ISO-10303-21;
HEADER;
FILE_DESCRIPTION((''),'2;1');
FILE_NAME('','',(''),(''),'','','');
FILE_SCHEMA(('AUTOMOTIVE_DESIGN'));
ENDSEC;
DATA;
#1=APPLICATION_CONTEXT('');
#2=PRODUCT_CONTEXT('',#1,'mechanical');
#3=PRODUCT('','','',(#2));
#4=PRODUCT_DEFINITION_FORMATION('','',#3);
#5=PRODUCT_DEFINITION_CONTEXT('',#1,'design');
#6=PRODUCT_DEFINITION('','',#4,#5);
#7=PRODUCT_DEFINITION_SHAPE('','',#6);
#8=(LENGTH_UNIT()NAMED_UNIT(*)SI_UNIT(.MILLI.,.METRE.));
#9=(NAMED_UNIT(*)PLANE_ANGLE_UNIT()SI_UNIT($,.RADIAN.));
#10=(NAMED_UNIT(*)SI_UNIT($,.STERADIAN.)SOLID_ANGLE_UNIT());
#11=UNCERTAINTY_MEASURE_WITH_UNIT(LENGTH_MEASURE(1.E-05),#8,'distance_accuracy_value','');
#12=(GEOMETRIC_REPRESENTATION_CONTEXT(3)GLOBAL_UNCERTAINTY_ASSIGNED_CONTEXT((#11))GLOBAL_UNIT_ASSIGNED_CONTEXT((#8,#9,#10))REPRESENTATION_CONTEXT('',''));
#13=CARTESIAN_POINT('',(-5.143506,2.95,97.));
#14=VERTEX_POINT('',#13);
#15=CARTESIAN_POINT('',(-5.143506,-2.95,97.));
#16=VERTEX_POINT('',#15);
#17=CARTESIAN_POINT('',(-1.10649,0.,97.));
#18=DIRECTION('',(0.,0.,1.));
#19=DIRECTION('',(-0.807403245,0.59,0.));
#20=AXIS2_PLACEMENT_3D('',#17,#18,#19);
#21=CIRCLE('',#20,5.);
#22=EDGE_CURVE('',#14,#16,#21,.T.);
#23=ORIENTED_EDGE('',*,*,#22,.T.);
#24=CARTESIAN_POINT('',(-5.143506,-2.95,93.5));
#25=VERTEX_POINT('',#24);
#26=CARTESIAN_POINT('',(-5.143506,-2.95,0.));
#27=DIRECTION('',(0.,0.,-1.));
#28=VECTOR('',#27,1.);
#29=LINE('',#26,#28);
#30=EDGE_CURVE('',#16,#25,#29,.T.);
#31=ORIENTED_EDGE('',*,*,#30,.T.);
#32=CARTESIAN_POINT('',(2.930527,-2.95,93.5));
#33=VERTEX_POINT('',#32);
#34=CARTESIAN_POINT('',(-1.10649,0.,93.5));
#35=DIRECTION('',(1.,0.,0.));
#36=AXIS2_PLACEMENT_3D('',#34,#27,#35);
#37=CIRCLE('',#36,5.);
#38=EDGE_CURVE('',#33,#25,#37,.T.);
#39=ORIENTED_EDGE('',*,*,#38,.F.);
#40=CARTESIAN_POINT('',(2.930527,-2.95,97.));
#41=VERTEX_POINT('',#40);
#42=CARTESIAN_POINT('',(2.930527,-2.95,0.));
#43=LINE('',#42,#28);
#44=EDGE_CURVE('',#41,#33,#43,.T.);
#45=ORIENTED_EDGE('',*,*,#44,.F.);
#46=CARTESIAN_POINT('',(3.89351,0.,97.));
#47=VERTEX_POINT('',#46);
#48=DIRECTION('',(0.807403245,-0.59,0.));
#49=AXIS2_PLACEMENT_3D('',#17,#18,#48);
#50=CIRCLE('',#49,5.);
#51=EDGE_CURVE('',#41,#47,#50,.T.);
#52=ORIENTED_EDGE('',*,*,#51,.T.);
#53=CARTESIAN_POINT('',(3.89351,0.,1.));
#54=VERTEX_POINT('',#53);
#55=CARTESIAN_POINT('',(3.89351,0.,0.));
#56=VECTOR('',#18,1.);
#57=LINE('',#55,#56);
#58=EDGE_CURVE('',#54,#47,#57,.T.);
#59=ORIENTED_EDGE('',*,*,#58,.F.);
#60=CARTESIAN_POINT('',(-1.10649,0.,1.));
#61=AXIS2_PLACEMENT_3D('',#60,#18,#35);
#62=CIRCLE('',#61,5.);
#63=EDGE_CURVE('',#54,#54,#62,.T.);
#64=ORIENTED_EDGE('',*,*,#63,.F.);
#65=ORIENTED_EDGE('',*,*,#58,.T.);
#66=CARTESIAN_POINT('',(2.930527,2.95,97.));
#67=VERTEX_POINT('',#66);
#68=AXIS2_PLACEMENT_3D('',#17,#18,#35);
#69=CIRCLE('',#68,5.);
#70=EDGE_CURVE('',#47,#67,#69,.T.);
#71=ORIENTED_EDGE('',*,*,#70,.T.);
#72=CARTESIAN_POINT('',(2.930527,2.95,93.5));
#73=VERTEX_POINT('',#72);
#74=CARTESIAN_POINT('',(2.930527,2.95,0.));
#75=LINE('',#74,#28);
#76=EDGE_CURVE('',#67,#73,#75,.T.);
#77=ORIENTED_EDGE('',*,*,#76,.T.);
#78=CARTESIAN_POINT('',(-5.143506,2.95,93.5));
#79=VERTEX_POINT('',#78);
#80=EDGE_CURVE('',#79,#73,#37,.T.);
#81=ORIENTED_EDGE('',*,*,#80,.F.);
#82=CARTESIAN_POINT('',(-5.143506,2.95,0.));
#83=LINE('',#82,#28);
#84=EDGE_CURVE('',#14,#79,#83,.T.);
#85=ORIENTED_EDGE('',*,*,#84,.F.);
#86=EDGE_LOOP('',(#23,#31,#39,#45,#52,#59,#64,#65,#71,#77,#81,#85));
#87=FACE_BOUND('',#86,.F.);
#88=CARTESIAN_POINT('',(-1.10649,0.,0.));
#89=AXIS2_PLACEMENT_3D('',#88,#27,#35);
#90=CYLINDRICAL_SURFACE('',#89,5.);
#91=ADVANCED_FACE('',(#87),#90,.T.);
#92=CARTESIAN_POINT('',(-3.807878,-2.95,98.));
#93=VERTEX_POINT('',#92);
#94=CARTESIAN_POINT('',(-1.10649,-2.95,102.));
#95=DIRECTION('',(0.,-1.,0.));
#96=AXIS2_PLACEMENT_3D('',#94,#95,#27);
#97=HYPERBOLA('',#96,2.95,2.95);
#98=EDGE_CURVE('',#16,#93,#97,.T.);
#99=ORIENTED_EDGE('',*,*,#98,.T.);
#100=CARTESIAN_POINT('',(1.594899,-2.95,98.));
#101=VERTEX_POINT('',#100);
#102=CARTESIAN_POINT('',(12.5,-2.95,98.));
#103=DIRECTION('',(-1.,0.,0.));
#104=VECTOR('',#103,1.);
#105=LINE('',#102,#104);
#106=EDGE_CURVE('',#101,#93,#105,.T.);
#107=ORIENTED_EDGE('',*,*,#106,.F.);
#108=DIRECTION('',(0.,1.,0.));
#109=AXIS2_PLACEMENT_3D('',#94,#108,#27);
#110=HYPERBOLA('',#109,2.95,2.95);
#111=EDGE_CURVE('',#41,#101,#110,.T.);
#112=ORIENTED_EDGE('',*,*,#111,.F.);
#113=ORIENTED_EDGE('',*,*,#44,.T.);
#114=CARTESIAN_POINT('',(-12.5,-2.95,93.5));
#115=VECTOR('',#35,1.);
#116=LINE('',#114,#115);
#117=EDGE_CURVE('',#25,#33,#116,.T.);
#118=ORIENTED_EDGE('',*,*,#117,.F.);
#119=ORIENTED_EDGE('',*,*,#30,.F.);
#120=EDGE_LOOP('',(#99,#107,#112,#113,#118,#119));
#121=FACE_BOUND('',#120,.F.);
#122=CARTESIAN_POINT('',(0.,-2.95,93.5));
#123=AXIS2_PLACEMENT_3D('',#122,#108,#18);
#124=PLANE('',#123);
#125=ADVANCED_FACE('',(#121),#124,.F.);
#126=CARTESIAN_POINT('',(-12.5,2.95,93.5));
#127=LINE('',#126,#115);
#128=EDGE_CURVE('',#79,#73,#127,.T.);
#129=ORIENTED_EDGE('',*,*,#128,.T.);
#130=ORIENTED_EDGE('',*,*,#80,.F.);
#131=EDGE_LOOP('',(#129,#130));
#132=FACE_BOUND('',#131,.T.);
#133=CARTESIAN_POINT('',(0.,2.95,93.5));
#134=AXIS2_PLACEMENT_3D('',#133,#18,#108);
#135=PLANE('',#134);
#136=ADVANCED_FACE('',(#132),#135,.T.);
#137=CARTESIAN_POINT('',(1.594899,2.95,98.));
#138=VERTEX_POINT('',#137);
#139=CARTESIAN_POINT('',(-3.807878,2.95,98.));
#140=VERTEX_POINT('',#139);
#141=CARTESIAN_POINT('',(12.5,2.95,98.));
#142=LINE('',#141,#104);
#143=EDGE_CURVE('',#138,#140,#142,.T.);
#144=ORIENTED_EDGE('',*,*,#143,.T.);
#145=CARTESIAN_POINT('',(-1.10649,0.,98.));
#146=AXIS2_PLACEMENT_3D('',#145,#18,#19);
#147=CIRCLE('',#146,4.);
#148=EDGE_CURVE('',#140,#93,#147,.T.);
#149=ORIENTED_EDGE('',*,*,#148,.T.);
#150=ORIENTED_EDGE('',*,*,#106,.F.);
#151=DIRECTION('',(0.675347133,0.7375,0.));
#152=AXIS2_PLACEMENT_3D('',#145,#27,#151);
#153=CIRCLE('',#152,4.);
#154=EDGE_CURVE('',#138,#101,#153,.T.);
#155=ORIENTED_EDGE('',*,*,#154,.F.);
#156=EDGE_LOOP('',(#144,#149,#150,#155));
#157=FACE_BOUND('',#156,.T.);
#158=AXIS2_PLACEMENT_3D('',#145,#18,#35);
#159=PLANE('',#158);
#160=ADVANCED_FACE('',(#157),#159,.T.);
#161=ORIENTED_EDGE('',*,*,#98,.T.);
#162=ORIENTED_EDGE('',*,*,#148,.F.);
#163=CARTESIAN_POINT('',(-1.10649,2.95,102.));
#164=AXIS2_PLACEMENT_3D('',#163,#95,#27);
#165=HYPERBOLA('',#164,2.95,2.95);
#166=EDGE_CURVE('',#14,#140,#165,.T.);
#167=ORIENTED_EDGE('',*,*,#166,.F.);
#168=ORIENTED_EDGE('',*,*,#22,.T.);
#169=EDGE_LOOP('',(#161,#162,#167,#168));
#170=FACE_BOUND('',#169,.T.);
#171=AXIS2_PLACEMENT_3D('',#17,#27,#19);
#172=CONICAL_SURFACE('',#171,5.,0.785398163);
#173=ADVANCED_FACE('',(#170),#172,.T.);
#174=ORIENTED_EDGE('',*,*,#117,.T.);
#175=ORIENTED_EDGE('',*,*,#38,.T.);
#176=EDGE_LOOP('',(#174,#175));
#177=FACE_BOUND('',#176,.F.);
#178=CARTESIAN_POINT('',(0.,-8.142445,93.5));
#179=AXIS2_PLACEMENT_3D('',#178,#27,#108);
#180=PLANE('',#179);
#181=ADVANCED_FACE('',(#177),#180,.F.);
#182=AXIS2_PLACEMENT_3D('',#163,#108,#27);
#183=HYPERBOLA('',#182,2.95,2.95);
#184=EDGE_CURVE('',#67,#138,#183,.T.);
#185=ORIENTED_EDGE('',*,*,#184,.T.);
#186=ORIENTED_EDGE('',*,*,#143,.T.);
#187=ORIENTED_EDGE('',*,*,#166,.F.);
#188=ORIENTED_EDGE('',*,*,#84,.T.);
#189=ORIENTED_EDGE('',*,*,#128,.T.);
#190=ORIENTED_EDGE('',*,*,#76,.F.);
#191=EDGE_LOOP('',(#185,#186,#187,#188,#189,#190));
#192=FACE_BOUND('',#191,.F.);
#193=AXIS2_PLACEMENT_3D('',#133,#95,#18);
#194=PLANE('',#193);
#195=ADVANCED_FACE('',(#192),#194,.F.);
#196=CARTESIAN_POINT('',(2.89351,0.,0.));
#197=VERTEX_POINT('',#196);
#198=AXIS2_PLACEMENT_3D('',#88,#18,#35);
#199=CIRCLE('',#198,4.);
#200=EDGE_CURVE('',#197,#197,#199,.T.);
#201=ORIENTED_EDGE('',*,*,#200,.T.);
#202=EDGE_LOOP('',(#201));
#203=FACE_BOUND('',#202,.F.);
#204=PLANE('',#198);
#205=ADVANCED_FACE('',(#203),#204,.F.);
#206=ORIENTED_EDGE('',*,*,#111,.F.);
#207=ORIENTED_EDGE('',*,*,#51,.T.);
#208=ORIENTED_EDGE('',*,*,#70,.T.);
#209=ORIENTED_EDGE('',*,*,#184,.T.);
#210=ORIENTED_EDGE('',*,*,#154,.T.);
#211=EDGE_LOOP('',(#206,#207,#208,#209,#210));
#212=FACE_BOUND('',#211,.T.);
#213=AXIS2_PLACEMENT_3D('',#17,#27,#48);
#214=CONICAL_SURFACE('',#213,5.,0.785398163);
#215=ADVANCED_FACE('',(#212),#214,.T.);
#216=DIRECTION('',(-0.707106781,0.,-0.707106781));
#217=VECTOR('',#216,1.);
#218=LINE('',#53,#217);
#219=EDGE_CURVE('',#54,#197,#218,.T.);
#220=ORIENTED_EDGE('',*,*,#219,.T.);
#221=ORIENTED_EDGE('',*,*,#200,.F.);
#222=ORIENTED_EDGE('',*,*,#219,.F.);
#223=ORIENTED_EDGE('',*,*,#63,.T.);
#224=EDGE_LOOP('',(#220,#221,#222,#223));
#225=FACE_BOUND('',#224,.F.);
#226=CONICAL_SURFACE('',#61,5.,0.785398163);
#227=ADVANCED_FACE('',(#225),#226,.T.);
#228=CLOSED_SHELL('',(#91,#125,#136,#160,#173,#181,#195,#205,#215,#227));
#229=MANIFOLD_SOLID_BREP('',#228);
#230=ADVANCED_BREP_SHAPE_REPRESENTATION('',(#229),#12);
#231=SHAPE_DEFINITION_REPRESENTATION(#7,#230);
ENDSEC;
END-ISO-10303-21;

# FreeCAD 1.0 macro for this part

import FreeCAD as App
import Part
import Sketcher

V = App.Vector
Q = App.Units.Quantity


def edges_at(feature, points):
    """Names of the edges that pass closest to the given points."""
    edges = feature.Shape.Edges
    near = lambda p: min(range(len(edges)), key=lambda i: edges[i].distToShape(Part.Vertex(*p))[0])
    return sorted({f"Edge{near(p) + 1}" for p in points})


def add_polygon(sketch, points):
    """Adds a closed chain of lines whose ends are joined by coincident constraints."""
    first, n = sketch.GeometryCount, len(points)
    for a, b in zip(points, points[1:] + points[:1]):
        sketch.addGeometry(Part.LineSegment(App.Vector(*a, 0), App.Vector(*b, 0)), False)
    for i in range(n):
        sketch.addConstraint(Sketcher.Constraint("Coincident", first + i, 2, first + (i + 1) % n, 1))

doc = App.newDocument("Part")
params = doc.addObject("Spreadsheet::Sheet", "Params")
for row, (alias, value) in enumerate([
    ("sketch1_diameter", "10 mm"),
    ("pad1_length", "98 mm"),
    ("sketch2_height", "4.5 mm"),
    ("pocket1_length", "25 mm"),
    ("chamfer_size", "1 mm"),
    ("chamfer2_size", "1 mm"),
], start=1):
    params.set(f"A{row}", alias)
    params.set(f"B{row}", "=" + value)
    params.setAlias(f"B{row}", alias)

body = doc.addObject("PartDesign::Body", "Body")

sketch1 = body.newObject("Sketcher::SketchObject", "Sketch")
sketch1.AttachmentSupport = (doc.getObject("XY_Plane"), [""])
sketch1.MapMode = "FlatFace"
sketch1.addGeometry(Part.Circle(V(-1, 0, 0), V(0, 0, 1), 5), False)
sketch1.addConstraint(Sketcher.Constraint("PointOnObject", 0, 3, -1))
sketch1.addConstraint(Sketcher.Constraint("Diameter", 0, Q("10 mm")))
sketch1.addConstraint(Sketcher.Constraint("DistanceX", 0, 3, -1, 1, Q("1.10649 mm")))
sketch1.setExpression("Constraints[1]", "Params.sketch1_diameter")
pad1 = body.newObject("PartDesign::Pad", "Pad")
pad1.Profile = sketch1
pad1.setExpression("Length", "Params.pad1_length")

sketch2 = body.newObject("Sketcher::SketchObject", "Sketch001")
sketch2.AttachmentSupport = (doc.getObject("YZ_Plane"), [""])
sketch2.MapMode = "FlatFace"
add_polygon(sketch2, [(3, 98), (3, 93.5), (7.8, 93.5), (7.8, 98)])
add_polygon(sketch2, [(-8.1, 98), (-8.1, 93.5), (-3, 93.5), (-3, 98)])
sketch2.addConstraint(Sketcher.Constraint("Vertical", 0))
sketch2.addConstraint(Sketcher.Constraint("Horizontal", 1))
sketch2.addConstraint(Sketcher.Constraint("Vertical", 2))
sketch2.addConstraint(Sketcher.Constraint("Horizontal", 3))
sketch2.addConstraint(Sketcher.Constraint("Vertical", 4))
sketch2.addConstraint(Sketcher.Constraint("Horizontal", 5))
sketch2.addConstraint(Sketcher.Constraint("Vertical", 6))
sketch2.addConstraint(Sketcher.Constraint("Horizontal", 7))
sketch2.addConstraint(Sketcher.Constraint("Symmetric", 0, 2, 5, 2, -2))
sketch2.addConstraint(Sketcher.Constraint("Horizontal", 3, 2, 6, 2))
sketch2.addConstraint(Sketcher.Constraint("DistanceY", 0, 2, 0, 1, Q("4.5 mm")))
sketch2.addConstraint(Sketcher.Constraint("DistanceY", -1, 1, 2, 2, Q("98 mm")))
sketch2.addConstraint(Sketcher.Constraint("DistanceX", 5, 2, 0, 2, Q("5.9 mm")))
sketch2.addConstraint(Sketcher.Constraint("DistanceX", 1, 1, 1, 2, Q("4.866815 mm")))
sketch2.addConstraint(Sketcher.Constraint("DistanceX", 5, 1, 5, 2, Q("5.192445 mm")))
sketch2.setExpression("Constraints[18]", "Params.sketch2_height")
pocket1 = body.newObject("PartDesign::Pocket", "Pocket")
pocket1.Profile = sketch2
pocket1.setExpression("Length", "Params.pocket1_length")
pocket1.Midplane = True
doc.recompute()

chamfer = body.newObject("PartDesign::Chamfer", "Chamfer")
chamfer.Base = (pocket1, edges_at(pocket1, [(3.647, -1.552, 98), (-6.106, 0, 98), (3.647, 1.552, 98)]))
chamfer.setExpression("Size", "Params.chamfer_size")
doc.recompute()

chamfer2 = body.newObject("PartDesign::Chamfer", "Chamfer001")
chamfer2.Base = (chamfer, edges_at(chamfer, [(-6.106, 0, 0)]))
chamfer2.setExpression("Size", "Params.chamfer2_size")

doc.recompute()
